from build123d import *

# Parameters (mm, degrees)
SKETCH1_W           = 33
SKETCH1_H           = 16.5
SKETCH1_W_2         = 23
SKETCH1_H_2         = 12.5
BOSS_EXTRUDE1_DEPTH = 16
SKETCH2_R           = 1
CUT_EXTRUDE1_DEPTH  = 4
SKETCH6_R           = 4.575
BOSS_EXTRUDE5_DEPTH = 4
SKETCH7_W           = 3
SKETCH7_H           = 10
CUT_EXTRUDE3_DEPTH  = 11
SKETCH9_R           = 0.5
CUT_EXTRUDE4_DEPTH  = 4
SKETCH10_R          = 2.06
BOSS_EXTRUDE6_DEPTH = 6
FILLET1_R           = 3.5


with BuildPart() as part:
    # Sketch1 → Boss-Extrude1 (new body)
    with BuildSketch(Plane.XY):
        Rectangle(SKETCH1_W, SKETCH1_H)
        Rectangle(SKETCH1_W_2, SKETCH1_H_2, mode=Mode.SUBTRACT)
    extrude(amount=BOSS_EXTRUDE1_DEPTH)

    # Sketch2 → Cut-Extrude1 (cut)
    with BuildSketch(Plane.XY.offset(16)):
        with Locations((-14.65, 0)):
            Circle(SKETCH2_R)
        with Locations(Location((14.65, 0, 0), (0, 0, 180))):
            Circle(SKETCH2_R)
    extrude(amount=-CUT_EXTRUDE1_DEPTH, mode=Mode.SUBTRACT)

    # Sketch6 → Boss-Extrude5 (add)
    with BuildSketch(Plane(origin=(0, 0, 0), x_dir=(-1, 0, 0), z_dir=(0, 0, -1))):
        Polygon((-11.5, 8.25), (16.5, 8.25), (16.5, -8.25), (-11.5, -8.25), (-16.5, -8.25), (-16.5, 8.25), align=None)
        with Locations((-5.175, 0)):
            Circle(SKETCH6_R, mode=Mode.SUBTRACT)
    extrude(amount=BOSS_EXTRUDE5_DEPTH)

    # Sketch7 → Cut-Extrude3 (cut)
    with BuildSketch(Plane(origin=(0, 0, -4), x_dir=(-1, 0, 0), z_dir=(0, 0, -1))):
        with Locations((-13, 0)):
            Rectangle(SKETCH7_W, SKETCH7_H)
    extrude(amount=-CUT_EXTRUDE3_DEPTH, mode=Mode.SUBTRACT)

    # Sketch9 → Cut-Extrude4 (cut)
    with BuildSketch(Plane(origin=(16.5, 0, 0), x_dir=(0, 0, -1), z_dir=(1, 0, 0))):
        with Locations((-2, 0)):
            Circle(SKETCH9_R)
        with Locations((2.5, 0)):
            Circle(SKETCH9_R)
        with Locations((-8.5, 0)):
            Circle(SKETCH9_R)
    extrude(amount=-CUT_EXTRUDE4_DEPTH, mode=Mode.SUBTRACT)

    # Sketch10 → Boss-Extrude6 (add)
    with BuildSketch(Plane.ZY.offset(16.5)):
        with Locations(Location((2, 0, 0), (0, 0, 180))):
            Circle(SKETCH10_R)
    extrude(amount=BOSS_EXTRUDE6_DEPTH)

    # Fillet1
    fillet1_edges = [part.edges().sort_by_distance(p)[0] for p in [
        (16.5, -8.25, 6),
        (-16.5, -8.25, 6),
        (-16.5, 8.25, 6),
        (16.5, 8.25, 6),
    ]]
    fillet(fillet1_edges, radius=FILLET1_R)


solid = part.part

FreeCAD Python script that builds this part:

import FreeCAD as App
import Part
import Sketcher
from FreeCAD import Vector


def edges_at(feature, points):
    """Names of the edges that pass closest to the given points."""
    edges = feature.Shape.Edges
    near = lambda p: min(range(len(edges)), key=lambda i: edges[i].distToShape(Part.Vertex(*p))[0])
    return sorted({f"Edge{near(p) + 1}" for p in points})

doc = App.newDocument("Part")
body = doc.addObject("PartDesign::Body", "Body")

# Sketch on XY plane
sketch1 = body.newObject("Sketcher::SketchObject", "Sketch")
sketch1.AttachmentSupport = (doc.getObject("XY_Plane"), [""])
sketch1.MapMode = "FlatFace"
sketch1.addGeometry(Part.LineSegment(Vector(-16.5, 8.25, 0), Vector(-16.5, -8.25, 0)), False)
sketch1.addGeometry(Part.LineSegment(Vector(-16.5, -8.25, 0), Vector(16.5, -8.25, 0)), False)
sketch1.addGeometry(Part.LineSegment(Vector(16.5, -8.25, 0), Vector(16.5, 8.25, 0)), False)
sketch1.addGeometry(Part.LineSegment(Vector(16.5, 8.25, 0), Vector(-16.5, 8.25, 0)), False)
sketch1.addGeometry(Part.LineSegment(Vector(11.5, -6.25, 0), Vector(-11.5, -6.25, 0)), False)
sketch1.addGeometry(Part.LineSegment(Vector(-11.5, -6.25, 0), Vector(-11.5, 6.25, 0)), False)
sketch1.addGeometry(Part.LineSegment(Vector(-11.5, 6.25, 0), Vector(11.5, 6.25, 0)), False)
sketch1.addGeometry(Part.LineSegment(Vector(11.5, 6.25, 0), Vector(11.5, -6.25, 0)), False)
sketch1.addConstraint(Sketcher.Constraint("Coincident", 0, 2, 1, 1))
sketch1.addConstraint(Sketcher.Constraint("Coincident", 1, 2, 2, 1))
sketch1.addConstraint(Sketcher.Constraint("Coincident", 2, 2, 3, 1))
sketch1.addConstraint(Sketcher.Constraint("Coincident", 3, 2, 0, 1))
sketch1.addConstraint(Sketcher.Constraint("Coincident", 4, 2, 5, 1))
sketch1.addConstraint(Sketcher.Constraint("Coincident", 5, 2, 6, 1))
sketch1.addConstraint(Sketcher.Constraint("Coincident", 6, 2, 7, 1))
sketch1.addConstraint(Sketcher.Constraint("Coincident", 7, 2, 4, 1))
sketch1.addConstraint(Sketcher.Constraint("Vertical", 0))
sketch1.addConstraint(Sketcher.Constraint("Horizontal", 1))
sketch1.addConstraint(Sketcher.Constraint("Vertical", 2))
sketch1.addConstraint(Sketcher.Constraint("Horizontal", 3))
sketch1.addConstraint(Sketcher.Constraint("Horizontal", 4))
sketch1.addConstraint(Sketcher.Constraint("Vertical", 5))
sketch1.addConstraint(Sketcher.Constraint("Horizontal", 6))
sketch1.addConstraint(Sketcher.Constraint("Vertical", 7))
sketch1.addConstraint(Sketcher.Constraint("Symmetric", 0, 2, 2, 2, -1, 1))
sketch1.addConstraint(Sketcher.Constraint("Symmetric", 4, 2, 6, 2, -1, 1))
sketch1.addConstraint(Sketcher.Constraint("DistanceX", 1, 1, 1, 2, 33.0))
sketch1.addConstraint(Sketcher.Constraint("DistanceX", 4, 2, 4, 1, 23.0))
sketch1.addConstraint(Sketcher.Constraint("DistanceY", 0, 2, 0, 1, 16.5))
sketch1.addConstraint(Sketcher.Constraint("DistanceY", 5, 1, 5, 2, 12.5))
pad1 = body.newObject("PartDesign::Pad", "Pad")
pad1.Profile = sketch1
pad1.Length = 16

# Sketch on XY plane
sketch2 = body.newObject("Sketcher::SketchObject", "Sketch001")
sketch2.AttachmentSupport = (doc.getObject("XY_Plane"), [""])
sketch2.MapMode = "FlatFace"
sketch2.AttachmentOffset = App.Placement(Vector(0, 0, 16), App.Rotation())
sketch2.addGeometry(Part.Circle(Vector(-14.65, 0, 0), Vector(0, 0, 1), 1), False)
sketch2.addGeometry(Part.Circle(Vector(14.65, 0, 0), Vector(0, 0, 1), 1), False)
sketch2.addConstraint(Sketcher.Constraint("Equal", 0, 1))
sketch2.addConstraint(Sketcher.Constraint("Symmetric", 0, 3, 1, 3, -1, 1))
sketch2.addConstraint(Sketcher.Constraint("PointOnObject", 0, 3, -1))
sketch2.addConstraint(Sketcher.Constraint("Diameter", 0, 2.0))
sketch2.addConstraint(Sketcher.Constraint("DistanceX", 0, 3, 1, 3, 29.3))
pocket1 = body.newObject("PartDesign::Pocket", "Pocket")
pocket1.Profile = sketch2
pocket1.Length = 4

# Sketch on XY plane
sketch3 = body.newObject("Sketcher::SketchObject", "Sketch002")
sketch3.AttachmentSupport = (doc.getObject("XY_Plane"), [""])
sketch3.MapMode = "FlatFace"
sketch3.addGeometry(Part.LineSegment(Vector(-16.5, 8.25, 0), Vector(16.5, 8.25, 0)), False)
sketch3.addGeometry(Part.LineSegment(Vector(16.5, 8.25, 0), Vector(16.5, -8.25, 0)), False)
sketch3.addGeometry(Part.LineSegment(Vector(16.5, -8.25, 0), Vector(-16.5, -8.25, 0)), False)
sketch3.addGeometry(Part.LineSegment(Vector(-16.5, -8.25, 0), Vector(-16.5, 8.25, 0)), False)
sketch3.addGeometry(Part.Circle(Vector(5.175, 0, 0), Vector(0, 0, 1), 4.575), False)
sketch3.addConstraint(Sketcher.Constraint("Coincident", 0, 2, 1, 1))
sketch3.addConstraint(Sketcher.Constraint("Coincident", 1, 2, 2, 1))
sketch3.addConstraint(Sketcher.Constraint("Coincident", 2, 2, 3, 1))
sketch3.addConstraint(Sketcher.Constraint("Coincident", 3, 2, 0, 1))
sketch3.addConstraint(Sketcher.Constraint("Horizontal", 0))
sketch3.addConstraint(Sketcher.Constraint("Vertical", 1))
sketch3.addConstraint(Sketcher.Constraint("Horizontal", 2))
sketch3.addConstraint(Sketcher.Constraint("Vertical", 3))
sketch3.addConstraint(Sketcher.Constraint("Symmetric", 0, 2, 2, 2, -1, 1))
sketch3.addConstraint(Sketcher.Constraint("PointOnObject", 4, 3, -1))
sketch3.addConstraint(Sketcher.Constraint("Diameter", 4, 9.15))
sketch3.addConstraint(Sketcher.Constraint("DistanceX", 0, 1, 0, 2, 33.0))
sketch3.addConstraint(Sketcher.Constraint("DistanceY", 1, 2, 1, 1, 16.5))
sketch3.addConstraint(Sketcher.Constraint("DistanceX", -1, 1, 4, 3, 5.175))
pad2 = body.newObject("PartDesign::Pad", "Pad001")
pad2.Profile = sketch3
pad2.Length = 4
pad2.Reversed = True

# Sketch on XY plane
sketch4 = body.newObject("Sketcher::SketchObject", "Sketch003")
sketch4.AttachmentSupport = (doc.getObject("XY_Plane"), [""])
sketch4.MapMode = "FlatFace"
sketch4.AttachmentOffset = App.Placement(Vector(0, 0, -4), App.Rotation())
sketch4.addGeometry(Part.LineSegment(Vector(14.5, 5, 0), Vector(14.5, -5, 0)), False)
sketch4.addGeometry(Part.LineSegment(Vector(14.5, -5, 0), Vector(11.5, -5, 0)), False)
sketch4.addGeometry(Part.LineSegment(Vector(11.5, -5, 0), Vector(11.5, 5, 0)), False)
sketch4.addGeometry(Part.LineSegment(Vector(11.5, 5, 0), Vector(14.5, 5, 0)), False)
sketch4.addConstraint(Sketcher.Constraint("Coincident", 0, 2, 1, 1))
sketch4.addConstraint(Sketcher.Constraint("Coincident", 1, 2, 2, 1))
sketch4.addConstraint(Sketcher.Constraint("Coincident", 2, 2, 3, 1))
sketch4.addConstraint(Sketcher.Constraint("Coincident", 3, 2, 0, 1))
sketch4.addConstraint(Sketcher.Constraint("Vertical", 0))
sketch4.addConstraint(Sketcher.Constraint("Horizontal", 1))
sketch4.addConstraint(Sketcher.Constraint("Vertical", 2))
sketch4.addConstraint(Sketcher.Constraint("Horizontal", 3))
sketch4.addConstraint(Sketcher.Constraint("DistanceX", 1, 2, 1, 1, 3.0))
sketch4.addConstraint(Sketcher.Constraint("DistanceY", 0, 2, 0, 1, 10.0))
sketch4.addConstraint(Sketcher.Constraint("DistanceY", 0, 2, -1, 1, 5.0))
sketch4.addConstraint(Sketcher.Constraint("DistanceX", -1, 1, 0, 2, 14.5))
pocket2 = body.newObject("PartDesign::Pocket", "Pocket001")
pocket2.Profile = sketch4
pocket2.Length = 11
pocket2.Reversed = True

# Sketch on YZ plane
sketch5 = body.newObject("Sketcher::SketchObject", "Sketch004")
sketch5.AttachmentSupport = (doc.getObject("YZ_Plane"), [""])
sketch5.MapMode = "FlatFace"
sketch5.AttachmentOffset = App.Placement(Vector(0, 0, 16.5), App.Rotation())
sketch5.addGeometry(Part.Circle(Vector(0, 2, 0), Vector(0, 0, 1), 0.5), False)
sketch5.addGeometry(Part.Circle(Vector(0, -2.5, 0), Vector(0, 0, 1), 0.5), False)
sketch5.addGeometry(Part.Circle(Vector(0, 8.5, 0), Vector(0, 0, 1), 0.5), False)
sketch5.addConstraint(Sketcher.Constraint("Equal", 0, 1))
sketch5.addConstraint(Sketcher.Constraint("Equal", 1, 2))
sketch5.addConstraint(Sketcher.Constraint("PointOnObject", 0, 3, -2))
sketch5.addConstraint(Sketcher.Constraint("PointOnObject", 1, 3, -2))
sketch5.addConstraint(Sketcher.Constraint("PointOnObject", 2, 3, -2))
sketch5.addConstraint(Sketcher.Constraint("Diameter", 0, 1.0))
sketch5.addConstraint(Sketcher.Constraint("DistanceY", -1, 1, 0, 3, 2.0))
sketch5.addConstraint(Sketcher.Constraint("DistanceY", 1, 3, 2, 3, 11.0))
sketch5.addConstraint(Sketcher.Constraint("DistanceY", 1, 3, -1, 1, 2.5))
pocket3 = body.newObject("PartDesign::Pocket", "Pocket002")
pocket3.Profile = sketch5
pocket3.Length = 4

# Sketch on YZ plane
sketch6 = body.newObject("Sketcher::SketchObject", "Sketch005")
sketch6.AttachmentSupport = (doc.getObject("YZ_Plane"), [""])
sketch6.MapMode = "FlatFace"
sketch6.AttachmentOffset = App.Placement(Vector(0, 0, -16.5), App.Rotation())
sketch6.addGeometry(Part.Circle(Vector(0, 2, 0), Vector(0, 0, 1), 2.06), False)
sketch6.addConstraint(Sketcher.Constraint("PointOnObject", 0, 3, -2))
sketch6.addConstraint(Sketcher.Constraint("Diameter", 0, 4.12))
sketch6.addConstraint(Sketcher.Constraint("DistanceY", -1, 1, 0, 3, 2.0))
pad3 = body.newObject("PartDesign::Pad", "Pad002")
pad3.Profile = sketch6
pad3.Length = 6
pad3.Reversed = True
doc.recompute()

fillet = body.newObject("PartDesign::Fillet", "Fillet")
fillet.Base = (pad3, edges_at(pad3, [
    (16.5, -8.25, 6),
    (-16.5, -8.25, 6),
    (-16.5, 8.25, 6),
    (16.5, 8.25, 6),
]))
fillet.Radius = 3.5

doc.recompute()
